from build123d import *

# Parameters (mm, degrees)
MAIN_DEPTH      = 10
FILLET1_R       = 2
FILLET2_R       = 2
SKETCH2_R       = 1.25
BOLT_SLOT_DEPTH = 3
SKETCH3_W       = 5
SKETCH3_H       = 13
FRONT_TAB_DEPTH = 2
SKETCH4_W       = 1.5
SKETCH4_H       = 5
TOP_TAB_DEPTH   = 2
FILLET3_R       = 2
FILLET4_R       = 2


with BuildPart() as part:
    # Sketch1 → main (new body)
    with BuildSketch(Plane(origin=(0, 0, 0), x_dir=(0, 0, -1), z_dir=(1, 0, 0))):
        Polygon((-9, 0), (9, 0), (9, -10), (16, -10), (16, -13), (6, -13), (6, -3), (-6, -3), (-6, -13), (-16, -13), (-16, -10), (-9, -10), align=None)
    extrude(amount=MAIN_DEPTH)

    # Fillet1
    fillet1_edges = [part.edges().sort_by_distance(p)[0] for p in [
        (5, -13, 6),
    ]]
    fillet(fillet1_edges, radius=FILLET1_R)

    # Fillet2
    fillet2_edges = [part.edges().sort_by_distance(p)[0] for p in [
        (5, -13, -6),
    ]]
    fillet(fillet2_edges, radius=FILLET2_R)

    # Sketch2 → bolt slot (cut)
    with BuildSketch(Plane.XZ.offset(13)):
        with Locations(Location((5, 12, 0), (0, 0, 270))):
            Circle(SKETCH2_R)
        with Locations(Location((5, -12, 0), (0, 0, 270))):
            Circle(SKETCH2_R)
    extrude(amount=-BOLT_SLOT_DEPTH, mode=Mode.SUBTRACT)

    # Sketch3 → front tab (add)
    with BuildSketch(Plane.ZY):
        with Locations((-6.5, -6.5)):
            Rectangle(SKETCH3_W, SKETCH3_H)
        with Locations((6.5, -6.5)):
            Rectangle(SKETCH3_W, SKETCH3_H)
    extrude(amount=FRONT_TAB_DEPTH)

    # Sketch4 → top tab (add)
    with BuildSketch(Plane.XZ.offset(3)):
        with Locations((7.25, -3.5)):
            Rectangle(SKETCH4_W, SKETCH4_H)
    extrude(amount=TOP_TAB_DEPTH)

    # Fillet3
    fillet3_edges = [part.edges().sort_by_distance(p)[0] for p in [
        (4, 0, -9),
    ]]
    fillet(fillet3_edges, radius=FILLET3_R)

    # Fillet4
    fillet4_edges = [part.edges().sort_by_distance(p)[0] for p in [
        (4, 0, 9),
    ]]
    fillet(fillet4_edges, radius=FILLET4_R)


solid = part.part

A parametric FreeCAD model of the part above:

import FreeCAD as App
import Part
import Sketcher

V = App.Vector
Q = App.Units.Quantity


def edges_at(feature, points):
    """Names of the edges that pass closest to the given points."""
    edges = feature.Shape.Edges
    near = lambda p: min(range(len(edges)), key=lambda i: edges[i].distToShape(Part.Vertex(*p))[0])
    return sorted({f"Edge{near(p) + 1}" for p in points})


def add_polygon(sketch, points):
    """Adds a closed chain of lines whose ends are joined by coincident constraints."""
    first, n = sketch.GeometryCount, len(points)
    for a, b in zip(points, points[1:] + points[:1]):
        sketch.addGeometry(Part.LineSegment(App.Vector(*a, 0), App.Vector(*b, 0)), False)
    for i in range(n):
        sketch.addConstraint(Sketcher.Constraint("Coincident", first + i, 2, first + (i + 1) % n, 1))

doc = App.newDocument("Part")
body = doc.addObject("PartDesign::Body", "Body")

# Sketch on YZ plane
sketch1 = doc.addObject("Sketcher::SketchObject", "Sketch")
body.addObject(sketch1)
sketch1.AttachmentSupport = (doc.YZ_Plane, [""])
sketch1.MapMode = "FlatFace"
add_polygon(sketch1, [(0, -9), (0, 9), (-10, 9), (-10, 16), (-13, 16), (-13, 6), (-3, 6), (-3, -6), (-13, -6), (-13, -16), (-10, -16), (-10, -9)])  # lines 0-11
sketch1.addConstraint([
    Sketcher.Constraint("Vertical", 0),
    Sketcher.Constraint("Horizontal", 1),
    Sketcher.Constraint("Vertical", 2),
    Sketcher.Constraint("Horizontal", 3),
    Sketcher.Constraint("Vertical", 4),
    Sketcher.Constraint("Horizontal", 5),
    Sketcher.Constraint("Vertical", 6),
    Sketcher.Constraint("Horizontal", 7),
    Sketcher.Constraint("Vertical", 8),
    Sketcher.Constraint("Horizontal", 9),
    Sketcher.Constraint("Vertical", 10),
    Sketcher.Constraint("Horizontal", 11),
    Sketcher.Constraint("Symmetric", 0, 2, 11, 2, -1, 1),
    Sketcher.Constraint("Symmetric", 4, 2, 7, 2, -1),
    Sketcher.Constraint("Symmetric", 2, 2, 9, 2, -1),
    Sketcher.Constraint("Equal", 1, 5),
    Sketcher.Constraint("Equal", 11, 4),
    Sketcher.Constraint("DistanceX", 1, 2, 1, 1, Q("10 mm")),
    Sketcher.Constraint("DistanceX", 3, 2, 3, 1, Q("3 mm")),
    Sketcher.Constraint("DistanceY", 0, 1, 0, 2, Q("18 mm")),
    Sketcher.Constraint("DistanceY", 2, 1, 2, 2, Q("7 mm")),
])
pad1 = doc.addObject("PartDesign::Pad", "Pad")
body.addObject(pad1)
pad1.Profile = sketch1
pad1.Length = 10
doc.recompute()

fillet = doc.addObject("PartDesign::Fillet", "Fillet")
body.addObject(fillet)
fillet.Base = (pad1, edges_at(pad1, [(5, -13, 6)]))
fillet.Radius = 2
doc.recompute()

fillet2 = doc.addObject("PartDesign::Fillet", "Fillet001")
body.addObject(fillet2)
fillet2.Base = (fillet, edges_at(fillet, [(5, -13, -6)]))
fillet2.Radius = 2

# Sketch on XZ plane
sketch2 = doc.addObject("Sketcher::SketchObject", "Sketch001")
body.addObject(sketch2)
sketch2.AttachmentSupport = (doc.XZ_Plane, [""])
sketch2.MapMode = "FlatFace"
sketch2.AttachmentOffset = App.Placement(V(0, 0, 13), App.Rotation())
sketch2.addGeometry([
    Part.Circle(V(5, 12, 0), V(0, 0, 1), 1.2),
    Part.Circle(V(5, -12, 0), V(0, 0, 1), 1.2),
], False)
sketch2.addConstraint([
    Sketcher.Constraint("Equal", 0, 1),
    Sketcher.Constraint("Symmetric", 0, 3, 1, 3, -1),
    Sketcher.Constraint("Diameter", 0, Q("2.5 mm")),
    Sketcher.Constraint("DistanceX", -1, 1, 0, 3, Q("5 mm")),
    Sketcher.Constraint("DistanceY", -1, 1, 0, 3, Q("12 mm")),
])
pocket1 = doc.addObject("PartDesign::Pocket", "Pocket")
body.addObject(pocket1)
pocket1.Profile = sketch2
pocket1.Length = 3

# Sketch on YZ plane
sketch3 = doc.addObject("Sketcher::SketchObject", "Sketch002")
body.addObject(sketch3)
sketch3.AttachmentSupport = (doc.YZ_Plane, [""])
sketch3.MapMode = "FlatFace"
add_polygon(sketch3, [(0, -9), (-13, -9), (-13, -4), (0, -4)])  # lines 0-3
add_polygon(sketch3, [(0, 4), (-13, 4), (-13, 9), (0, 9)])  # lines 4-7
sketch3.addConstraint([
    Sketcher.Constraint("Horizontal", 0),
    Sketcher.Constraint("Vertical", 1),
    Sketcher.Constraint("Horizontal", 2),
    Sketcher.Constraint("Vertical", 3),
    Sketcher.Constraint("Horizontal", 4),
    Sketcher.Constraint("Vertical", 5),
    Sketcher.Constraint("Horizontal", 6),
    Sketcher.Constraint("Vertical", 7),
    Sketcher.Constraint("Symmetric", 3, 2, 6, 2, -1, 1),
    Sketcher.Constraint("Symmetric", 1, 2, 4, 2, -1),
    Sketcher.Constraint("PointOnObject", 2, 2, -2),
    Sketcher.Constraint("DistanceX", 0, 2, 0, 1, Q("13 mm")),
    Sketcher.Constraint("DistanceY", 1, 1, 1, 2, Q("5 mm")),
    Sketcher.Constraint("DistanceY", 0, 2, -1, 1, Q("9 mm")),
])
pad2 = doc.addObject("PartDesign::Pad", "Pad001")
body.addObject(pad2)
pad2.Profile = sketch3
pad2.Length = 2
pad2.Reversed = True

# Sketch on XZ plane
sketch4 = doc.addObject("Sketcher::SketchObject", "Sketch003")
body.addObject(sketch4)
sketch4.AttachmentSupport = (doc.XZ_Plane, [""])
sketch4.MapMode = "FlatFace"
sketch4.AttachmentOffset = App.Placement(V(0, 0, 3), App.Rotation())
add_polygon(sketch4, [(6.5, -1), (6.5, -6), (8, -6), (8, -1)])  # lines 0-3
sketch4.addConstraint([
    Sketcher.Constraint("Vertical", 0),
    Sketcher.Constraint("Horizontal", 1),
    Sketcher.Constraint("Vertical", 2),
    Sketcher.Constraint("Horizontal", 3),
    Sketcher.Constraint("DistanceY", 0, 2, 0, 1, Q("5 mm")),
    Sketcher.Constraint("DistanceX", 1, 1, 1, 2, Q("1.5 mm")),
    Sketcher.Constraint("DistanceY", 0, 2, -1, 1, Q("6 mm")),
    Sketcher.Constraint("DistanceX", -1, 1, 1, 2, Q("8 mm")),
])
pad3 = doc.addObject("PartDesign::Pad", "Pad002")
body.addObject(pad3)
pad3.Profile = sketch4
pad3.Length = 2
doc.recompute()

fillet3 = doc.addObject("PartDesign::Fillet", "Fillet002")
body.addObject(fillet3)
fillet3.Base = (pad3, edges_at(pad3, [(4, 0, -9)]))
fillet3.Radius = 2
doc.recompute()

fillet4 = doc.addObject("PartDesign::Fillet", "Fillet003")
body.addObject(fillet4)
fillet4.Base = (fillet3, edges_at(fillet3, [(4, 0, 9)]))
fillet4.Radius = 2

doc.recompute()
